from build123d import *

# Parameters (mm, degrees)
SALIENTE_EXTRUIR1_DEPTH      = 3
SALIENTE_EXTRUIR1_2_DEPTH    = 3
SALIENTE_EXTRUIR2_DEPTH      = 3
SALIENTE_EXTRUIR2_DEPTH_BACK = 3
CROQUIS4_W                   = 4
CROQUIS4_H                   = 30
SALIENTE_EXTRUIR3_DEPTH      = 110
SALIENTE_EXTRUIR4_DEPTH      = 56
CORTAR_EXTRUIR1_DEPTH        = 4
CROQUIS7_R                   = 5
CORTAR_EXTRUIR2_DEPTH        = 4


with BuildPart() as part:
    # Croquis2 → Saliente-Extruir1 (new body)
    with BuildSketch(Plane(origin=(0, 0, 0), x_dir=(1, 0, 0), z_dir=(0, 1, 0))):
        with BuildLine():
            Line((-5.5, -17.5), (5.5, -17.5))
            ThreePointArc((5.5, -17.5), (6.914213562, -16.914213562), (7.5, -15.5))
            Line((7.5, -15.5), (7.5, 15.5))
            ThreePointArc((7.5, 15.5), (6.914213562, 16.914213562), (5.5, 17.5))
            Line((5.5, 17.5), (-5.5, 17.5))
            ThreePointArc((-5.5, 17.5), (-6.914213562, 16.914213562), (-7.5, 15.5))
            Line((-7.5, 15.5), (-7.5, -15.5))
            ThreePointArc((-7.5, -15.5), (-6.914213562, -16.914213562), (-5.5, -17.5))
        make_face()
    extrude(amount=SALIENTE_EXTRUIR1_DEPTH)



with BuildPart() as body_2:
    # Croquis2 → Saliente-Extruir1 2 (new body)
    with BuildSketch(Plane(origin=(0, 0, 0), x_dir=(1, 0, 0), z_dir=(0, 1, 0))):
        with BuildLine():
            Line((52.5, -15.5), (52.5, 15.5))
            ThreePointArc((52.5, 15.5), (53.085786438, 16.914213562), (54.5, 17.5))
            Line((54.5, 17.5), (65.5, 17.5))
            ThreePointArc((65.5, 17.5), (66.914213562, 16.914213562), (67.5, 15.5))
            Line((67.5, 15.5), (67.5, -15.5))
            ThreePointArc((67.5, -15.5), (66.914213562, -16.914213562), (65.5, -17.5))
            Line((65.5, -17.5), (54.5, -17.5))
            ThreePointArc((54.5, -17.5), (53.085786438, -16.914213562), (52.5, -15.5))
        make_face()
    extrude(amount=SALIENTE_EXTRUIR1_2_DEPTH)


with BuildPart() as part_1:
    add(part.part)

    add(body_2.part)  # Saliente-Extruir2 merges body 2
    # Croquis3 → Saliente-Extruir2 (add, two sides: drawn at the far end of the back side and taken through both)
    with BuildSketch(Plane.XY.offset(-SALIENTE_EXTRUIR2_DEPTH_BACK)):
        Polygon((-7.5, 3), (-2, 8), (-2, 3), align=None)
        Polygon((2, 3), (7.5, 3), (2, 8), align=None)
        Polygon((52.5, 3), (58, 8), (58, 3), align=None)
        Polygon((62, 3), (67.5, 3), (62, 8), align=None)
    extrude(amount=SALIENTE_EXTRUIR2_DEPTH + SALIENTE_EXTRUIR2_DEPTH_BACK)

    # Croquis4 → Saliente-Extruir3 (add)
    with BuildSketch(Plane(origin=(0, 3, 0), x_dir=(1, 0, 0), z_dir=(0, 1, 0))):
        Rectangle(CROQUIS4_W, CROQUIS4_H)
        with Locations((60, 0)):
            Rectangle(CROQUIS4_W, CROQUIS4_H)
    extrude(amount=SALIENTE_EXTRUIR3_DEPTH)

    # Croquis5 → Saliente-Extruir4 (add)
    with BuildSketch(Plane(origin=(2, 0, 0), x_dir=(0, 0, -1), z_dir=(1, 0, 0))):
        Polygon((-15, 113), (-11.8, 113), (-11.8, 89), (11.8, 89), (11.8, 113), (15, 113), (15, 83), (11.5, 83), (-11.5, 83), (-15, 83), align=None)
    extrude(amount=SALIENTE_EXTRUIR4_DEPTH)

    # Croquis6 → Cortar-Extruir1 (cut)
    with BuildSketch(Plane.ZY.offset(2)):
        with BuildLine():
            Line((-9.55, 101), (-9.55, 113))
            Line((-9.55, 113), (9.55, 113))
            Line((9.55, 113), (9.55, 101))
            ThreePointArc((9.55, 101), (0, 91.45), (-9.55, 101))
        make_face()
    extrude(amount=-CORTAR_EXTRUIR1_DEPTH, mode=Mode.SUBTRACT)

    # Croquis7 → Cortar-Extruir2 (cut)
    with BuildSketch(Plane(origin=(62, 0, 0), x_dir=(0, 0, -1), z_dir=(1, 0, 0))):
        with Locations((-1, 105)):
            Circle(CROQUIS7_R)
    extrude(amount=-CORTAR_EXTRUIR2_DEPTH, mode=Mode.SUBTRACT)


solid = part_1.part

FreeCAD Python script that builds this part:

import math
import FreeCAD as App
import Part
import Sketcher

V = App.Vector

doc = App.newDocument("Part")
params = doc.addObject("Spreadsheet::Sheet", "Params")
for row, (alias, value) in enumerate([
    ("sketch1_radius", "2 mm"),
    ("sketch1_width", "11 mm"),
    ("sketch1_height", "31 mm"),
    ("pad1_length", "3 mm"),
    ("sketch2_radius", "2 mm"),
    ("sketch2_width", "11 mm"),
    ("sketch2_height", "31 mm"),
    ("pad2_length", "3 mm"),
    ("sketch3_height", "5 mm"),
    ("sketch3_width", "5.5 mm"),
    ("pad3_length", "3 mm"),
    ("pad3_length2", "3 mm"),
    ("sketch4_width", "4 mm"),
    ("sketch4_height", "30 mm"),
    ("pad4_length", "110 mm"),
    ("sketch5_width", "30 mm"),
    ("sketch5_width2", "24 mm"),
    ("sketch5_height", "3.2 mm"),
    ("pad5_length", "56 mm"),
    ("sketch6_width", "12 mm"),
    ("sketch6_radius", "9.55 mm"),
    ("pocket1_length", "4 mm"),
    ("sketch7_diameter", "10 mm"),
    ("pocket2_length", "4 mm"),
], start=1):
    params.set(f"A{row}", alias)
    params.set(f"B{row}", "=" + value)
    params.setAlias(f"B{row}", alias)

body = doc.addObject("PartDesign::Body", "Body")

# Sketch on XZ plane
sketch1 = doc.addObject("Sketcher::SketchObject", "Sketch")
body.addObject(sketch1)
sketch1.AttachmentSupport = (doc.XZ_Plane, [""])
sketch1.MapMode = "FlatFace"
sketch1.addGeometry(Part.LineSegment(V(-5.5, 17.5, 0), V(5.5, 17.5, 0)), False)
sketch1.addGeometry(Part.ArcOfCircle(Part.Circle(V(5.5, 15.5, 0), V(0, 0, 1), 2), math.radians(0), math.radians(90)), False)
sketch1.addGeometry(Part.LineSegment(V(7.5, 15.5, 0), V(7.5, -15.5, 0)), False)
sketch1.addGeometry(Part.ArcOfCircle(Part.Circle(V(5.5, -15.5, 0), V(0, 0, 1), 2), math.radians(-90), math.radians(0)), False)
sketch1.addGeometry(Part.LineSegment(V(5.5, -17.5, 0), V(-5.5, -17.5, 0)), False)
sketch1.addGeometry(Part.ArcOfCircle(Part.Circle(V(-5.5, -15.5, 0), V(0, 0, 1), 2), math.radians(-180), math.radians(-90)), False)
sketch1.addGeometry(Part.LineSegment(V(-7.5, -15.5, 0), V(-7.5, 15.5, 0)), False)
sketch1.addGeometry(Part.ArcOfCircle(Part.Circle(V(-5.5, 15.5, 0), V(0, 0, 1), 2), math.radians(90), math.radians(180)), False)
sketch1.addConstraint(Sketcher.Constraint("Tangent", 0, 2, 1, 2))
sketch1.addConstraint(Sketcher.Constraint("Tangent", 1, 1, 2, 1))
sketch1.addConstraint(Sketcher.Constraint("Tangent", 2, 2, 3, 2))
sketch1.addConstraint(Sketcher.Constraint("Tangent", 3, 1, 4, 1))
sketch1.addConstraint(Sketcher.Constraint("Tangent", 4, 2, 5, 2))
sketch1.addConstraint(Sketcher.Constraint("Tangent", 5, 1, 6, 1))
sketch1.addConstraint(Sketcher.Constraint("Tangent", 6, 2, 7, 2))
sketch1.addConstraint(Sketcher.Constraint("Tangent", 7, 1, 0, 1))
sketch1.addConstraint(Sketcher.Constraint("Horizontal", 0))
sketch1.addConstraint(Sketcher.Constraint("Vertical", 2))
sketch1.addConstraint(Sketcher.Constraint("Horizontal", 4))
sketch1.addConstraint(Sketcher.Constraint("Vertical", 6))
sketch1.addConstraint(Sketcher.Constraint("Equal", 1, 3))
sketch1.addConstraint(Sketcher.Constraint("Equal", 3, 5))
sketch1.addConstraint(Sketcher.Constraint("Equal", 5, 7))
sketch1.addConstraint(Sketcher.Constraint("Symmetric", 1, 3, 5, 3, -1, 1))
sketch1.addConstraint(Sketcher.Constraint("Radius", 1, 2.0))
sketch1.addConstraint(Sketcher.Constraint("DistanceX", 0, 1, 0, 2, 11.0))
sketch1.addConstraint(Sketcher.Constraint("DistanceY", 2, 2, 2, 1, 31.0))
sketch1.setExpression("Constraints[16]", "Params.sketch1_radius")
sketch1.setExpression("Constraints[17]", "Params.sketch1_width")
sketch1.setExpression("Constraints[18]", "Params.sketch1_height")
pad1 = doc.addObject("PartDesign::Pad", "Pad")
body.addObject(pad1)
pad1.Profile = sketch1
pad1.setExpression("Length", "Params.pad1_length")
pad1.Reversed = True
body2 = doc.addObject("PartDesign::Body", "Body001")

# Sketch on XZ plane
sketch2 = doc.addObject("Sketcher::SketchObject", "Sketch001")
body2.addObject(sketch2)
sketch2.AttachmentSupport = (doc.getObject("XZ_Plane001"), [""])
sketch2.MapMode = "FlatFace"
sketch2.addGeometry(Part.LineSegment(V(52.5, -15.5, 0), V(52.5, 15.5, 0)), False)
sketch2.addGeometry(Part.ArcOfCircle(Part.Circle(V(54.5, 15.5, 0), V(0, 0, 1), 2), math.radians(90), math.radians(180)), False)
sketch2.addGeometry(Part.LineSegment(V(54.5, 17.5, 0), V(65.5, 17.5, 0)), False)
sketch2.addGeometry(Part.ArcOfCircle(Part.Circle(V(65.5, 15.5, 0), V(0, 0, 1), 2), math.radians(0), math.radians(90)), False)
sketch2.addGeometry(Part.LineSegment(V(67.5, 15.5, 0), V(67.5, -15.5, 0)), False)
sketch2.addGeometry(Part.ArcOfCircle(Part.Circle(V(65.5, -15.5, 0), V(0, 0, 1), 2), math.radians(-90), math.radians(0)), False)
sketch2.addGeometry(Part.LineSegment(V(65.5, -17.5, 0), V(54.5, -17.5, 0)), False)
sketch2.addGeometry(Part.ArcOfCircle(Part.Circle(V(54.5, -15.5, 0), V(0, 0, 1), 2), math.radians(-180), math.radians(-90)), False)
sketch2.addConstraint(Sketcher.Constraint("Tangent", 0, 2, 1, 2))
sketch2.addConstraint(Sketcher.Constraint("Tangent", 1, 1, 2, 1))
sketch2.addConstraint(Sketcher.Constraint("Tangent", 2, 2, 3, 2))
sketch2.addConstraint(Sketcher.Constraint("Tangent", 3, 1, 4, 1))
sketch2.addConstraint(Sketcher.Constraint("Tangent", 4, 2, 5, 2))
sketch2.addConstraint(Sketcher.Constraint("Tangent", 5, 1, 6, 1))
sketch2.addConstraint(Sketcher.Constraint("Tangent", 6, 2, 7, 2))
sketch2.addConstraint(Sketcher.Constraint("Tangent", 7, 1, 0, 1))
sketch2.addConstraint(Sketcher.Constraint("Vertical", 0))
sketch2.addConstraint(Sketcher.Constraint("Horizontal", 2))
sketch2.addConstraint(Sketcher.Constraint("Vertical", 4))
sketch2.addConstraint(Sketcher.Constraint("Horizontal", 6))
sketch2.addConstraint(Sketcher.Constraint("Equal", 1, 3))
sketch2.addConstraint(Sketcher.Constraint("Equal", 3, 5))
sketch2.addConstraint(Sketcher.Constraint("Equal", 5, 7))
sketch2.addConstraint(Sketcher.Constraint("Radius", 1, 2.0))
sketch2.addConstraint(Sketcher.Constraint("DistanceX", 2, 1, 2, 2, 11.0))
sketch2.addConstraint(Sketcher.Constraint("DistanceY", 0, 1, 0, 2, 31.0))
sketch2.addConstraint(Sketcher.Constraint("DistanceX", -1, 1, 1, 3, 54.5))
sketch2.addConstraint(Sketcher.Constraint("DistanceY", -1, 1, 1, 3, 15.5))
sketch2.setExpression("Constraints[15]", "Params.sketch2_radius")
sketch2.setExpression("Constraints[16]", "Params.sketch2_width")
sketch2.setExpression("Constraints[17]", "Params.sketch2_height")
pad2 = doc.addObject("PartDesign::Pad", "Pad001")
body2.addObject(pad2)
pad2.Profile = sketch2
pad2.setExpression("Length", "Params.pad2_length")
pad2.Reversed = True
body.AllowCompound = True
doc.recompute()

boolean = doc.addObject("PartDesign::Boolean", "Boolean")
body.addObject(boolean)
boolean.Type = "Fuse"
boolean.addObjects([body2])

# Sketch on XY plane
sketch3 = doc.addObject("Sketcher::SketchObject", "Sketch002")
body.addObject(sketch3)
sketch3.AttachmentSupport = (doc.XY_Plane, [""])
sketch3.MapMode = "FlatFace"
sketch3.addGeometry(Part.LineSegment(V(-2, 8, 0), V(-8, 3, 0)), False)
sketch3.addGeometry(Part.LineSegment(V(-8, 3, 0), V(-2, 3, 0)), False)
sketch3.addGeometry(Part.LineSegment(V(-2, 3, 0), V(-2, 8, 0)), False)
sketch3.addGeometry(Part.LineSegment(V(2, 3, 0), V(8, 3, 0)), False)
sketch3.addGeometry(Part.LineSegment(V(8, 3, 0), V(2, 8, 0)), False)
sketch3.addGeometry(Part.LineSegment(V(2, 8, 0), V(2, 3, 0)), False)
sketch3.addGeometry(Part.LineSegment(V(58, 8, 0), V(52, 3, 0)), False)
sketch3.addGeometry(Part.LineSegment(V(52, 3, 0), V(58, 3, 0)), False)
sketch3.addGeometry(Part.LineSegment(V(58, 3, 0), V(58, 8, 0)), False)
sketch3.addGeometry(Part.LineSegment(V(62, 3, 0), V(68, 3, 0)), False)
sketch3.addGeometry(Part.LineSegment(V(68, 3, 0), V(62, 8, 0)), False)
sketch3.addGeometry(Part.LineSegment(V(62, 8, 0), V(62, 3, 0)), False)
sketch3.addConstraint(Sketcher.Constraint("Coincident", 0, 2, 1, 1))
sketch3.addConstraint(Sketcher.Constraint("Coincident", 1, 2, 2, 1))
sketch3.addConstraint(Sketcher.Constraint("Coincident", 2, 2, 0, 1))
sketch3.addConstraint(Sketcher.Constraint("Coincident", 3, 2, 4, 1))
sketch3.addConstraint(Sketcher.Constraint("Coincident", 4, 2, 5, 1))
sketch3.addConstraint(Sketcher.Constraint("Coincident", 5, 2, 3, 1))
sketch3.addConstraint(Sketcher.Constraint("Coincident", 6, 2, 7, 1))
sketch3.addConstraint(Sketcher.Constraint("Coincident", 7, 2, 8, 1))
sketch3.addConstraint(Sketcher.Constraint("Coincident", 8, 2, 6, 1))
sketch3.addConstraint(Sketcher.Constraint("Coincident", 9, 2, 10, 1))
sketch3.addConstraint(Sketcher.Constraint("Coincident", 10, 2, 11, 1))
sketch3.addConstraint(Sketcher.Constraint("Coincident", 11, 2, 9, 1))
sketch3.addConstraint(Sketcher.Constraint("Horizontal", 1))
sketch3.addConstraint(Sketcher.Constraint("Vertical", 2))
sketch3.addConstraint(Sketcher.Constraint("Horizontal", 3))
sketch3.addConstraint(Sketcher.Constraint("Vertical", 5))
sketch3.addConstraint(Sketcher.Constraint("Horizontal", 7))
sketch3.addConstraint(Sketcher.Constraint("Vertical", 8))
sketch3.addConstraint(Sketcher.Constraint("Horizontal", 9))
sketch3.addConstraint(Sketcher.Constraint("Vertical", 11))
sketch3.addConstraint(Sketcher.Constraint("Symmetric", 0, 2, 3, 2, -2))
sketch3.addConstraint(Sketcher.Constraint("Symmetric", 2, 2, 4, 2, -2))
sketch3.addConstraint(Sketcher.Constraint("Parallel", 0, 6))
sketch3.addConstraint(Sketcher.Constraint("Parallel", 4, 10))
sketch3.addConstraint(Sketcher.Constraint("Horizontal", 5, 2, 6, 2))
sketch3.addConstraint(Sketcher.Constraint("Horizontal", 4, 2, 8, 2))
sketch3.addConstraint(Sketcher.Constraint("Horizontal", 7, 2, 9, 2))
sketch3.addConstraint(Sketcher.Constraint("Horizontal", 8, 2, 10, 2))
sketch3.addConstraint(Sketcher.Constraint("DistanceY", 2, 1, 2, 2, 5.0))
sketch3.addConstraint(Sketcher.Constraint("DistanceX", 1, 1, 1, 2, 5.5))
sketch3.addConstraint(Sketcher.Constraint("DistanceY", -1, 1, 0, 2, 3.0))
sketch3.addConstraint(Sketcher.Constraint("DistanceX", 1, 2, -1, 1, 2.0))
sketch3.addConstraint(Sketcher.Constraint("DistanceX", -1, 1, 7, 2, 58.0))
sketch3.addConstraint(Sketcher.Constraint("DistanceX", -1, 1, 10, 2, 62.0))
sketch3.setExpression("Constraints[28]", "Params.sketch3_height")
sketch3.setExpression("Constraints[29]", "Params.sketch3_width")
pad3 = doc.addObject("PartDesign::Pad", "Pad002")
body.addObject(pad3)
pad3.Profile = sketch3
pad3.Type = "TwoLengths"
pad3.setExpression("Length", "Params.pad3_length")
pad3.setExpression("Length2", "Params.pad3_length2")

# Sketch on XZ plane
sketch4 = doc.addObject("Sketcher::SketchObject", "Sketch003")
body.addObject(sketch4)
sketch4.AttachmentSupport = (doc.XZ_Plane, [""])
sketch4.MapMode = "FlatFace"
sketch4.AttachmentOffset = App.Placement(V(0, 0, -3), App.Rotation())
sketch4.addGeometry(Part.LineSegment(V(-2, -15, 0), V(-2, 15, 0)), False)
sketch4.addGeometry(Part.LineSegment(V(-2, 15, 0), V(2, 15, 0)), False)
sketch4.addGeometry(Part.LineSegment(V(2, 15, 0), V(2, -15, 0)), False)
sketch4.addGeometry(Part.LineSegment(V(2, -15, 0), V(-2, -15, 0)), False)
sketch4.addGeometry(Part.LineSegment(V(58, -15, 0), V(58, 15, 0)), False)
sketch4.addGeometry(Part.LineSegment(V(58, 15, 0), V(62, 15, 0)), False)
sketch4.addGeometry(Part.LineSegment(V(62, 15, 0), V(62, -15, 0)), False)
sketch4.addGeometry(Part.LineSegment(V(62, -15, 0), V(58, -15, 0)), False)
sketch4.addConstraint(Sketcher.Constraint("Coincident", 0, 2, 1, 1))
sketch4.addConstraint(Sketcher.Constraint("Coincident", 1, 2, 2, 1))
sketch4.addConstraint(Sketcher.Constraint("Coincident", 2, 2, 3, 1))
sketch4.addConstraint(Sketcher.Constraint("Coincident", 3, 2, 0, 1))
sketch4.addConstraint(Sketcher.Constraint("Coincident", 4, 2, 5, 1))
sketch4.addConstraint(Sketcher.Constraint("Coincident", 5, 2, 6, 1))
sketch4.addConstraint(Sketcher.Constraint("Coincident", 6, 2, 7, 1))
sketch4.addConstraint(Sketcher.Constraint("Coincident", 7, 2, 4, 1))
sketch4.addConstraint(Sketcher.Constraint("Vertical", 0))
sketch4.addConstraint(Sketcher.Constraint("Horizontal", 1))
sketch4.addConstraint(Sketcher.Constraint("Vertical", 2))
sketch4.addConstraint(Sketcher.Constraint("Horizontal", 3))
sketch4.addConstraint(Sketcher.Constraint("Vertical", 4))
sketch4.addConstraint(Sketcher.Constraint("Horizontal", 5))
sketch4.addConstraint(Sketcher.Constraint("Vertical", 6))
sketch4.addConstraint(Sketcher.Constraint("Horizontal", 7))
sketch4.addConstraint(Sketcher.Constraint("Symmetric", 0, 2, 2, 2, -1, 1))
sketch4.addConstraint(Sketcher.Constraint("Horizontal", 1, 2, 4, 2))
sketch4.addConstraint(Sketcher.Constraint("Horizontal", 3, 2, 6, 2))
sketch4.addConstraint(Sketcher.Constraint("Equal", 3, 5))
sketch4.addConstraint(Sketcher.Constraint("DistanceX", 1, 1, 1, 2, 4.0))
sketch4.addConstraint(Sketcher.Constraint("DistanceY", 0, 1, 0, 2, 30.0))
sketch4.addConstraint(Sketcher.Constraint("DistanceX", -1, 1, 4, 2, 58.0))
sketch4.setExpression("Constraints[20]", "Params.sketch4_width")
sketch4.setExpression("Constraints[21]", "Params.sketch4_height")
pad4 = doc.addObject("PartDesign::Pad", "Pad003")
body.addObject(pad4)
pad4.Profile = sketch4
pad4.setExpression("Length", "Params.pad4_length")
pad4.Reversed = True

# Sketch on YZ plane
sketch5 = doc.addObject("Sketcher::SketchObject", "Sketch004")
body.addObject(sketch5)
sketch5.AttachmentSupport = (doc.YZ_Plane, [""])
sketch5.MapMode = "FlatFace"
sketch5.AttachmentOffset = App.Placement(V(0, 0, 2), App.Rotation())
sketch5.addGeometry(Part.LineSegment(V(113, 11.8, 0), V(113, 15, 0)), False)
sketch5.addGeometry(Part.LineSegment(V(113, 15, 0), V(83, 15, 0)), False)
sketch5.addGeometry(Part.LineSegment(V(83, 15, 0), V(83, -15, 0)), False)
sketch5.addGeometry(Part.LineSegment(V(83, -15, 0), V(113, -15, 0)), False)
sketch5.addGeometry(Part.LineSegment(V(113, -15, 0), V(113, -11.8, 0)), False)
sketch5.addGeometry(Part.LineSegment(V(113, -11.8, 0), V(89, -11.8, 0)), False)
sketch5.addGeometry(Part.LineSegment(V(89, -11.8, 0), V(89, 11.8, 0)), False)
sketch5.addGeometry(Part.LineSegment(V(89, 11.8, 0), V(113, 11.8, 0)), False)
sketch5.addConstraint(Sketcher.Constraint("Coincident", 0, 2, 1, 1))
sketch5.addConstraint(Sketcher.Constraint("Coincident", 1, 2, 2, 1))
sketch5.addConstraint(Sketcher.Constraint("Coincident", 2, 2, 3, 1))
sketch5.addConstraint(Sketcher.Constraint("Coincident", 3, 2, 4, 1))
sketch5.addConstraint(Sketcher.Constraint("Coincident", 4, 2, 5, 1))
sketch5.addConstraint(Sketcher.Constraint("Coincident", 5, 2, 6, 1))
sketch5.addConstraint(Sketcher.Constraint("Coincident", 6, 2, 7, 1))
sketch5.addConstraint(Sketcher.Constraint("Coincident", 7, 2, 0, 1))
sketch5.addConstraint(Sketcher.Constraint("Vertical", 0))
sketch5.addConstraint(Sketcher.Constraint("Horizontal", 1))
sketch5.addConstraint(Sketcher.Constraint("Vertical", 2))
sketch5.addConstraint(Sketcher.Constraint("Horizontal", 3))
sketch5.addConstraint(Sketcher.Constraint("Vertical", 4))
sketch5.addConstraint(Sketcher.Constraint("Horizontal", 5))
sketch5.addConstraint(Sketcher.Constraint("Vertical", 6))
sketch5.addConstraint(Sketcher.Constraint("Horizontal", 7))
sketch5.addConstraint(Sketcher.Constraint("Symmetric", 0, 2, 3, 2, -1))
sketch5.addConstraint(Sketcher.Constraint("Equal", 3, 2))
sketch5.addConstraint(Sketcher.Constraint("Equal", 0, 4))
sketch5.addConstraint(Sketcher.Constraint("DistanceX", 1, 2, 1, 1, 30.0))
sketch5.addConstraint(Sketcher.Constraint("DistanceX", 5, 2, 5, 1, 24.0))
sketch5.addConstraint(Sketcher.Constraint("DistanceY", 0, 1, 0, 2, 3.2))
sketch5.addConstraint(Sketcher.Constraint("DistanceX", -1, 1, 0, 2, 113.0))
sketch5.setExpression("Constraints[19]", "Params.sketch5_width")
sketch5.setExpression("Constraints[20]", "Params.sketch5_width2")
sketch5.setExpression("Constraints[21]", "Params.sketch5_height")
pad5 = doc.addObject("PartDesign::Pad", "Pad004")
body.addObject(pad5)
pad5.Profile = sketch5
pad5.setExpression("Length", "Params.pad5_length")

# Sketch on YZ plane
sketch6 = doc.addObject("Sketcher::SketchObject", "Sketch005")
body.addObject(sketch6)
sketch6.AttachmentSupport = (doc.YZ_Plane, [""])
sketch6.MapMode = "FlatFace"
sketch6.AttachmentOffset = App.Placement(V(0, 0, -2), App.Rotation())
sketch6.addGeometry(Part.LineSegment(V(113, -10, 0), V(101, -10, 0)), False)
sketch6.addGeometry(Part.ArcOfCircle(Part.Circle(V(101, 0, 0), V(0, 0, 1), 10), math.radians(90), math.radians(270)), False)
sketch6.addGeometry(Part.LineSegment(V(101, 10, 0), V(113, 10, 0)), False)
sketch6.addGeometry(Part.LineSegment(V(113, 10, 0), V(113, -10, 0)), False)
sketch6.addConstraint(Sketcher.Constraint("Tangent", 0, 2, 1, 2))
sketch6.addConstraint(Sketcher.Constraint("Tangent", 1, 1, 2, 1))
sketch6.addConstraint(Sketcher.Constraint("Coincident", 2, 2, 3, 1))
sketch6.addConstraint(Sketcher.Constraint("Coincident", 3, 2, 0, 1))
sketch6.addConstraint(Sketcher.Constraint("Horizontal", 0))
sketch6.addConstraint(Sketcher.Constraint("Horizontal", 2))
sketch6.addConstraint(Sketcher.Constraint("Vertical", 3))
sketch6.addConstraint(Sketcher.Constraint("PointOnObject", 1, 3, -1))
sketch6.addConstraint(Sketcher.Constraint("DistanceX", 0, 2, 0, 1, 12.0))
sketch6.addConstraint(Sketcher.Constraint("Radius", 1, 9.55))
sketch6.addConstraint(Sketcher.Constraint("DistanceX", -1, 1, 1, 3, 101.0))
sketch6.setExpression("Constraints[8]", "Params.sketch6_width")
sketch6.setExpression("Constraints[9]", "Params.sketch6_radius")
pocket1 = doc.addObject("PartDesign::Pocket", "Pocket")
body.addObject(pocket1)
pocket1.Profile = sketch6
pocket1.setExpression("Length", "Params.pocket1_length")
pocket1.Reversed = True

# Sketch on YZ plane
sketch7 = doc.addObject("Sketcher::SketchObject", "Sketch006")
body.addObject(sketch7)
sketch7.AttachmentSupport = (doc.YZ_Plane, [""])
sketch7.MapMode = "FlatFace"
sketch7.AttachmentOffset = App.Placement(V(0, 0, 62), App.Rotation())
sketch7.addGeometry(Part.Circle(V(105, 1, 0), V(0, 0, 1), 5), False)
sketch7.addConstraint(Sketcher.Constraint("Diameter", 0, 10.0))
sketch7.addConstraint(Sketcher.Constraint("DistanceX", -1, 1, 0, 3, 105.0))
sketch7.addConstraint(Sketcher.Constraint("DistanceY", -1, 1, 0, 3, 1.0))
sketch7.setExpression("Constraints[0]", "Params.sketch7_diameter")
pocket2 = doc.addObject("PartDesign::Pocket", "Pocket001")
body.addObject(pocket2)
pocket2.Profile = sketch7
pocket2.setExpression("Length", "Params.pocket2_length")

doc.recompute()
